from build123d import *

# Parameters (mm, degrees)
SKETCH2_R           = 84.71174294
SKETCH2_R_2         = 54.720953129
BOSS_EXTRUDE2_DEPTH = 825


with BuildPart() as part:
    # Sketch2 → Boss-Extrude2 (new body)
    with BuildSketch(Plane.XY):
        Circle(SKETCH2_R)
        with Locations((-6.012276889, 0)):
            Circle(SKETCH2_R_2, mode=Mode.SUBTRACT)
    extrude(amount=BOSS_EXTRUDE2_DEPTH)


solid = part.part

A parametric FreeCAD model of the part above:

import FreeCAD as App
import Part
import Sketcher
from FreeCAD import Vector

doc = App.newDocument("Part")
body = doc.addObject("PartDesign::Body", "Body")

# Sketch on XY plane
sketch1 = body.newObject("Sketcher::SketchObject", "Sketch")
sketch1.AttachmentSupport = (doc.getObject("XY_Plane"), [""])
sketch1.MapMode = "FlatFace"
sketch1.addGeometry(Part.Circle(Vector(0, 0, 0), Vector(0, 0, 1), 85), False)
sketch1.addGeometry(Part.Circle(Vector(-6, 0, 0), Vector(0, 0, 1), 55), False)
sketch1.addConstraint(Sketcher.Constraint("Coincident", 0, 3, -1, 1))
sketch1.addConstraint(Sketcher.Constraint("PointOnObject", 1, 3, -1))
sketch1.addConstraint(Sketcher.Constraint("Diameter", 0, 169.423486))
sketch1.addConstraint(Sketcher.Constraint("Diameter", 1, 109.441906))
sketch1.addConstraint(Sketcher.Constraint("DistanceX", 1, 3, -1, 1, 6.012277))
pad1 = body.newObject("PartDesign::Pad", "Pad")
pad1.Profile = sketch1
pad1.Length = 825

doc.recompute()
